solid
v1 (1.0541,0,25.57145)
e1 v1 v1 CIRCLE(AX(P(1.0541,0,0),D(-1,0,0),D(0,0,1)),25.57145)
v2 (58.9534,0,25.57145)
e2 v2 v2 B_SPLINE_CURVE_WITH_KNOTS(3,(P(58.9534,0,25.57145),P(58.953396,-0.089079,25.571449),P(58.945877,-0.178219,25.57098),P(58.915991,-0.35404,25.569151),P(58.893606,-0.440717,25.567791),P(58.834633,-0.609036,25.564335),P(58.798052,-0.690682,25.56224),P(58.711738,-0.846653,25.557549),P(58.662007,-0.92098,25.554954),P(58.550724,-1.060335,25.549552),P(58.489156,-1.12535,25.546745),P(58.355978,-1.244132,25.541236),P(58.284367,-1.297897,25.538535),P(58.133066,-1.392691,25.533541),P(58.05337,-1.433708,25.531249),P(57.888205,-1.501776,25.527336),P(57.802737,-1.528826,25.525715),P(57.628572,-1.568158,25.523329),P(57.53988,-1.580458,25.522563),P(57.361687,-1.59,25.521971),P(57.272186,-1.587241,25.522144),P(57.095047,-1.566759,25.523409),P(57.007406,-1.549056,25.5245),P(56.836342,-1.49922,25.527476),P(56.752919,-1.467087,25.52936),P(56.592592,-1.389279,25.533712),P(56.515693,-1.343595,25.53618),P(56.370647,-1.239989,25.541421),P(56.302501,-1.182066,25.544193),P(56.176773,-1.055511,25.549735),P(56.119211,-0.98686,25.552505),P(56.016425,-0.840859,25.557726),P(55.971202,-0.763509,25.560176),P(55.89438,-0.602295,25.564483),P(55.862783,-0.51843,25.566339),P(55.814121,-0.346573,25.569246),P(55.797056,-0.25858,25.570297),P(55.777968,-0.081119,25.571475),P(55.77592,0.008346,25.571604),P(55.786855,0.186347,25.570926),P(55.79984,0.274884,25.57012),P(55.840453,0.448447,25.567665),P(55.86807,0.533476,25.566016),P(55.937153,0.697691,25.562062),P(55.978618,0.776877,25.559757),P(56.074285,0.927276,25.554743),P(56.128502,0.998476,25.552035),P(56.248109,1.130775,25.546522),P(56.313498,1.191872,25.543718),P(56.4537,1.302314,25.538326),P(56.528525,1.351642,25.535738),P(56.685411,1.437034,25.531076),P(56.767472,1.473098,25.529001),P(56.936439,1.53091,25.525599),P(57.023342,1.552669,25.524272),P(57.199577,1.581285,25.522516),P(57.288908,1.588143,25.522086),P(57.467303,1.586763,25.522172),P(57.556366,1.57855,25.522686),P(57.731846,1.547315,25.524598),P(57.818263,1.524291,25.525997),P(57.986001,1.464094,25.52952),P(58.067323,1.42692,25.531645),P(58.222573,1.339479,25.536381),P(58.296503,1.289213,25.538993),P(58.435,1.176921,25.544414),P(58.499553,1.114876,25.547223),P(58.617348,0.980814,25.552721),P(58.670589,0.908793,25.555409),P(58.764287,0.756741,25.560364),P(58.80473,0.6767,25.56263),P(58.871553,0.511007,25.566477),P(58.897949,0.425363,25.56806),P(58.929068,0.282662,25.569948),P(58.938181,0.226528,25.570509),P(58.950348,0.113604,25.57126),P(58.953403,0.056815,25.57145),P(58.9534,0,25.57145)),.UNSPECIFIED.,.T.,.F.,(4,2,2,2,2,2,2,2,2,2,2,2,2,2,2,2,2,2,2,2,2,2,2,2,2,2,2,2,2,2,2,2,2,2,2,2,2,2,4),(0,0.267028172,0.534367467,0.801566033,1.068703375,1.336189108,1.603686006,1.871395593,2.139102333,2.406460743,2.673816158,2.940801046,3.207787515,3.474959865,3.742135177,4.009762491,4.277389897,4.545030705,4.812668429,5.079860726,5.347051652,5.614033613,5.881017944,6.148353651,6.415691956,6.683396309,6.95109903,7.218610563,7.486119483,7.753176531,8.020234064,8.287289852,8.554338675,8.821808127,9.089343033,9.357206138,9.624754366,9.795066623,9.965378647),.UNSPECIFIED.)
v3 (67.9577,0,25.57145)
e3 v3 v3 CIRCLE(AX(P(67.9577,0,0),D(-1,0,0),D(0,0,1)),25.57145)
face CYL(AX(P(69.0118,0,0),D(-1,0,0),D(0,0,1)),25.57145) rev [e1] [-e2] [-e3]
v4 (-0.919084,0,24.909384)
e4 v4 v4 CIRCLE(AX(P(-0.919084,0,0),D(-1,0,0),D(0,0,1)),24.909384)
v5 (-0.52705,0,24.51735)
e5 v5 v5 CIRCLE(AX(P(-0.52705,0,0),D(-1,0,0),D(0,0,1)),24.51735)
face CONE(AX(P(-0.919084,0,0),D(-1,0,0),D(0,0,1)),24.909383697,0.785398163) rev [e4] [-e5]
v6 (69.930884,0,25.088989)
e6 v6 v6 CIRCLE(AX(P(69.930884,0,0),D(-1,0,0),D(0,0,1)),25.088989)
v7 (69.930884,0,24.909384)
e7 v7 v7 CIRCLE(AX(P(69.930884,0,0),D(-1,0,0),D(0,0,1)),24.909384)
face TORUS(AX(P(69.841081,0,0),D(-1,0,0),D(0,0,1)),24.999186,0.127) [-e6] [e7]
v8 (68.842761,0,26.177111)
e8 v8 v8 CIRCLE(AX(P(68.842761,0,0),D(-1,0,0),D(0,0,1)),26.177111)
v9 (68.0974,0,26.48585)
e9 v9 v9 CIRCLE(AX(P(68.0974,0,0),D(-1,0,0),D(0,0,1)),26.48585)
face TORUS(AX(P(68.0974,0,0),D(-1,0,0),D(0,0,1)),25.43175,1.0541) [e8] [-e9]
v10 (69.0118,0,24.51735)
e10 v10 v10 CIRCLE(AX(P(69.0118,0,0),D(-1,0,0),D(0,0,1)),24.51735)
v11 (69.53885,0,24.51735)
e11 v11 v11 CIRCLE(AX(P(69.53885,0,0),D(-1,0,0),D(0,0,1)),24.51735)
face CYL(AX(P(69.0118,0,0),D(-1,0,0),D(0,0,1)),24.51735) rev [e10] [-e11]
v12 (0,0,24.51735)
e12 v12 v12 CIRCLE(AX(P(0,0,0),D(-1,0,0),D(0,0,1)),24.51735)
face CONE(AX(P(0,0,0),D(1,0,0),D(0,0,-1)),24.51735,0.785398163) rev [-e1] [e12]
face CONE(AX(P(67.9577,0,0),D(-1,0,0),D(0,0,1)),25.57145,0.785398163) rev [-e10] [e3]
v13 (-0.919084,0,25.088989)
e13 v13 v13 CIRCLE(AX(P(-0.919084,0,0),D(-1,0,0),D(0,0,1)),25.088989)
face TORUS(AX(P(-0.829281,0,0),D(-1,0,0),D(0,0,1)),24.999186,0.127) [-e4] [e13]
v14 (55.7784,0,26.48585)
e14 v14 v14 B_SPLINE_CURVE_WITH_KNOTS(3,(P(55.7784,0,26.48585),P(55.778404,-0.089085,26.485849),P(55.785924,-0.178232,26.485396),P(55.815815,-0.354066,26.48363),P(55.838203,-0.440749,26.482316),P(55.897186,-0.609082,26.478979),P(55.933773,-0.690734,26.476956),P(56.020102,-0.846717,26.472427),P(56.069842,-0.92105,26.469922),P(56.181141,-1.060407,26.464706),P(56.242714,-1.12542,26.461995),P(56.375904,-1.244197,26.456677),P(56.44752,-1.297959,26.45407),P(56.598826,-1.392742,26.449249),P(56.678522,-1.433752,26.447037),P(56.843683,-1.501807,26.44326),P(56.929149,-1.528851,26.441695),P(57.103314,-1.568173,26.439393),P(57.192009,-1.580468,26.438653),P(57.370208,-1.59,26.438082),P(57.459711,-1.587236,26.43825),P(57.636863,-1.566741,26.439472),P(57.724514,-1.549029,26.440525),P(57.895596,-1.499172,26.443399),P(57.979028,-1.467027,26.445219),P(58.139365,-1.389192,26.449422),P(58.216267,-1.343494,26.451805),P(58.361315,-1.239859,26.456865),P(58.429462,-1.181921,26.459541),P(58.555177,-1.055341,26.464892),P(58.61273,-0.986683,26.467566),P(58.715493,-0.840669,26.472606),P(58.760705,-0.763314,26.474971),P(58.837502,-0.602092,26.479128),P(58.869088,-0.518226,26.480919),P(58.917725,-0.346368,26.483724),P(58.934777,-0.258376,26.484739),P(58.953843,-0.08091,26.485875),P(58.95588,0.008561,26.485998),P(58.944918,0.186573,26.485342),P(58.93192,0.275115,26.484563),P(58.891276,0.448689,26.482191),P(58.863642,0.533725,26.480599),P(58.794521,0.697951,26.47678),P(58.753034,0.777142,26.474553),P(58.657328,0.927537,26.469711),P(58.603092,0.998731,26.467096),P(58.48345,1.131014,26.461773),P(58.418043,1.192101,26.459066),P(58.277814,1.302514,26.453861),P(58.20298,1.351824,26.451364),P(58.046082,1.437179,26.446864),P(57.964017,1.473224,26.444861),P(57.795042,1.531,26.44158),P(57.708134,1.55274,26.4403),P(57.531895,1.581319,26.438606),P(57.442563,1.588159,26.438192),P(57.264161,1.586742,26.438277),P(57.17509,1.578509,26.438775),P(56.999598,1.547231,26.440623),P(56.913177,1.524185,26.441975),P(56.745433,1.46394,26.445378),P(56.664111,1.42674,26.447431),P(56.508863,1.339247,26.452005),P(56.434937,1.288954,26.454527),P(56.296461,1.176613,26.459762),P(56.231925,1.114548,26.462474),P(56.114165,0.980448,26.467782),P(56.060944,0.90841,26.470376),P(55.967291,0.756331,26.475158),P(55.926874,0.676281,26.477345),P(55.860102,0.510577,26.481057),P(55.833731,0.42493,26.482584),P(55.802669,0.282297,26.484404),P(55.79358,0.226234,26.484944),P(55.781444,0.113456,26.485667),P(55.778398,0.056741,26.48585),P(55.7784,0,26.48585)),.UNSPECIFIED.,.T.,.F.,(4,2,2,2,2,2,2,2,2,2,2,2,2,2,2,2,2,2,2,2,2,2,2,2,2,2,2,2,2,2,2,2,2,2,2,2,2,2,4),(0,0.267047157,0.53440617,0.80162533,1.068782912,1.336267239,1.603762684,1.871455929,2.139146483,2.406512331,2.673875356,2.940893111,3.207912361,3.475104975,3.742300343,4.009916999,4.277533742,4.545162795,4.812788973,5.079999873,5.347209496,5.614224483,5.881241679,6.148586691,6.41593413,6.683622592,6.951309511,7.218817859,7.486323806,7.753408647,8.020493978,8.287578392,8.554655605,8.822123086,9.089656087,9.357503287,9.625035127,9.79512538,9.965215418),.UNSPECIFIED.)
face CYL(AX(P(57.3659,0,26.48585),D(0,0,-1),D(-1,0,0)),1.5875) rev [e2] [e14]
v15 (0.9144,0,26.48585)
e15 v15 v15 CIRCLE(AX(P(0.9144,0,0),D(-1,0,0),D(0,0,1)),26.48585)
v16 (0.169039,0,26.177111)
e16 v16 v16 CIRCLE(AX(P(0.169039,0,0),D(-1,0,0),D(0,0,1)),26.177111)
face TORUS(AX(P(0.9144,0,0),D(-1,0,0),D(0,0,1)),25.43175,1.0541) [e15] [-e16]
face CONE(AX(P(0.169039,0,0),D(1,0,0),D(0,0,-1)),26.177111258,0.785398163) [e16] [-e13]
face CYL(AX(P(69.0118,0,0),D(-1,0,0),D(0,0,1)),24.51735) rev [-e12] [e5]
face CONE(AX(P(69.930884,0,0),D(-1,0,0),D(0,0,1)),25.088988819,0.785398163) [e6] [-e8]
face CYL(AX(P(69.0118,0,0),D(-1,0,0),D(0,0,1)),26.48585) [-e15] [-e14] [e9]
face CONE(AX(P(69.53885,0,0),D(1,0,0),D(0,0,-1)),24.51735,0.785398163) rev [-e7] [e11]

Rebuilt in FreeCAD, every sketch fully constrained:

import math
import FreeCAD as App
import Part
import Sketcher
Q = App.Units.Quantity

doc = App.newDocument("Part")
body = doc.addObject("PartDesign::Body", "Body")

sketch1 = body.newObject("Sketcher::SketchObject", "Sketch")
sketch1.AttachmentSupport = (doc.getObject("XY_Plane"), [""])
sketch1.MapMode = "FlatFace"
sketch1.addGeometry(Part.LineSegment(App.Vector(-0.92, 24.91, 0), App.Vector(-0.53, 24.52, 0)), False)
sketch1.addGeometry(Part.LineSegment(App.Vector(-0.53, 24.52, 0), App.Vector(0, 24.52, 0)), False)
sketch1.addGeometry(Part.LineSegment(App.Vector(0, 24.52, 0), App.Vector(1.05, 25.57, 0)), False)
sketch1.addGeometry(Part.LineSegment(App.Vector(1.05, 25.57, 0), App.Vector(67.96, 25.57, 0)), False)
sketch1.addGeometry(Part.LineSegment(App.Vector(67.96, 25.57, 0), App.Vector(69.01, 24.52, 0)), False)
sketch1.addGeometry(Part.LineSegment(App.Vector(69.01, 24.52, 0), App.Vector(69.54, 24.52, 0)), False)
sketch1.addGeometry(Part.LineSegment(App.Vector(69.54, 24.52, 0), App.Vector(69.93, 24.91, 0)), False)
sketch1.addGeometry(Part.ArcOfCircle(Part.Circle(App.Vector(69.84, 25, 0), App.Vector(0, 0, 1), 0.13), math.radians(-45), math.radians(45)), False)
sketch1.addGeometry(Part.LineSegment(App.Vector(69.93, 25.09, 0), App.Vector(68.84, 26.18, 0)), False)
sketch1.addGeometry(Part.ArcOfCircle(Part.Circle(App.Vector(68.1, 25.43, 0), App.Vector(0, 0, 1), 1.05), math.radians(45), math.radians(90)), False)
sketch1.addGeometry(Part.LineSegment(App.Vector(68.1, 26.49, 0), App.Vector(0.91, 26.49, 0)), False)
sketch1.addGeometry(Part.ArcOfCircle(Part.Circle(App.Vector(0.91, 25.43, 0), App.Vector(0, 0, 1), 1.05), math.radians(90), math.radians(135)), False)
sketch1.addGeometry(Part.LineSegment(App.Vector(0.17, 26.18, 0), App.Vector(-0.92, 25.09, 0)), False)
sketch1.addGeometry(Part.ArcOfCircle(Part.Circle(App.Vector(-0.83, 25, 0), App.Vector(0, 0, 1), 0.13), math.radians(135), math.radians(225)), False)
sketch1.addConstraint(Sketcher.Constraint("Coincident", 0, 2, 1, 1))
sketch1.addConstraint(Sketcher.Constraint("Coincident", 1, 2, 2, 1))
sketch1.addConstraint(Sketcher.Constraint("Coincident", 2, 2, 3, 1))
sketch1.addConstraint(Sketcher.Constraint("Coincident", 3, 2, 4, 1))
sketch1.addConstraint(Sketcher.Constraint("Coincident", 4, 2, 5, 1))
sketch1.addConstraint(Sketcher.Constraint("Coincident", 5, 2, 6, 1))
sketch1.addConstraint(Sketcher.Constraint("Tangent", 6, 2, 7, 1))
sketch1.addConstraint(Sketcher.Constraint("Tangent", 7, 2, 8, 1))
sketch1.addConstraint(Sketcher.Constraint("Tangent", 8, 2, 9, 1))
sketch1.addConstraint(Sketcher.Constraint("Tangent", 9, 2, 10, 1))
sketch1.addConstraint(Sketcher.Constraint("Tangent", 10, 2, 11, 1))
sketch1.addConstraint(Sketcher.Constraint("Tangent", 11, 2, 12, 1))
sketch1.addConstraint(Sketcher.Constraint("Tangent", 12, 2, 13, 1))
sketch1.addConstraint(Sketcher.Constraint("Tangent", 13, 2, 0, 1))
sketch1.addConstraint(Sketcher.Constraint("Horizontal", 1))
sketch1.addConstraint(Sketcher.Constraint("Horizontal", 3))
sketch1.addConstraint(Sketcher.Constraint("Horizontal", 5))
sketch1.addConstraint(Sketcher.Constraint("Horizontal", 10))
sketch1.addConstraint(Sketcher.Constraint("Equal", 9, 11))
sketch1.addConstraint(Sketcher.Constraint("Equal", 7, 13))
sketch1.addConstraint(Sketcher.Constraint("PointOnObject", 1, 2, -2))
sketch1.addConstraint(Sketcher.Constraint("Perpendicular", 0, 2))
sketch1.addConstraint(Sketcher.Constraint("Perpendicular", 2, 4))
sketch1.addConstraint(Sketcher.Constraint("Perpendicular", 4, 6))
sketch1.addConstraint(Sketcher.Constraint("Perpendicular", 6, 8))
sketch1.addConstraint(Sketcher.Constraint("Perpendicular", 8, 12))
sketch1.addConstraint(Sketcher.Constraint("Horizontal", 7, 3, 13, 3))
sketch1.addConstraint(Sketcher.Constraint("Horizontal", 1, 2, 4, 2))
sketch1.addConstraint(Sketcher.Constraint("Horizontal", 8, 2, 11, 2))
sketch1.addConstraint(Sketcher.Constraint("Equal", 1, 5))
sketch1.addConstraint(Sketcher.Constraint("Radius", 7, Q("0.005 in")))
sketch1.addConstraint(Sketcher.Constraint("Radius", 9, Q("0.0415 in")))
sketch1.addConstraint(Sketcher.Constraint("DistanceX", 3, 1, 3, 2, Q("2.634 in")))
sketch1.addConstraint(Sketcher.Constraint("DistanceX", 10, 2, 10, 1, Q("2.645 in")))
sketch1.addConstraint(Sketcher.Constraint("DistanceX", -1, 1, 9, 3, Q("2.681 in")))
sketch1.addConstraint(Sketcher.Constraint("DistanceY", 0, 2, 11, 3, Q("0.036 in")))
sketch1.addConstraint(Sketcher.Constraint("DistanceX", 1, 1, 1, 2, 0.52705))
sketch1.addConstraint(Sketcher.Constraint("DistanceY", -1, 1, 9, 3, 25.43175))
revolution = body.newObject("PartDesign::Revolution", "Revolution")
revolution.Profile = sketch1
revolution.ReferenceAxis = (sketch1, ["H_Axis"])
revolution.Angle = 360

sketch2 = body.newObject("Sketcher::SketchObject", "Sketch001")
sketch2.AttachmentSupport = (doc.getObject("XY_Plane"), [""])
sketch2.MapMode = "FlatFace"
sketch2.addGeometry(Part.Circle(App.Vector(57.4, 0, 0), App.Vector(0, 0, 1), 1.6), False)
sketch2.addConstraint(Sketcher.Constraint("PointOnObject", 0, 3, -1))
sketch2.addConstraint(Sketcher.Constraint("Diameter", 0, Q("0.125 in")))
sketch2.addConstraint(Sketcher.Constraint("DistanceX", -1, 1, 0, 3, Q("2.2585 in")))
pocket1 = body.newObject("PartDesign::Pocket", "Pocket")
pocket1.Profile = sketch2
pocket1.Length = 26.48585
pocket1.Reversed = True

doc.recompute()
